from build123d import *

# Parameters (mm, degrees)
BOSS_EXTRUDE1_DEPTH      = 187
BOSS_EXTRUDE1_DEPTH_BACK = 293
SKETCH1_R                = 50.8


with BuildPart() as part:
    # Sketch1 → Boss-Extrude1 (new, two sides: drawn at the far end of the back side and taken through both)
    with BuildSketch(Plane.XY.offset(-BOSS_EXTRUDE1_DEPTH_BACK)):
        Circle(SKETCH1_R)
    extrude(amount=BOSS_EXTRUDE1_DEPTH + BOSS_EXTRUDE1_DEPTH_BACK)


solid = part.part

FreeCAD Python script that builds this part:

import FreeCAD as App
import Part
import Sketcher
from FreeCAD import Vector

doc = App.newDocument("Part")
params = doc.addObject("Spreadsheet::Sheet", "Params")
for row, (alias, value) in enumerate([
    ("sketch1_diameter", "101.6 mm"),
    ("pad1_length", "187 mm"),
    ("pad1_length2", "293 mm"),
], start=1):
    params.set(f"A{row}", alias)
    params.set(f"B{row}", "=" + value)
    params.setAlias(f"B{row}", alias)

body = doc.addObject("PartDesign::Body", "Body")

# Sketch on XY plane
sketch1 = doc.addObject("Sketcher::SketchObject", "Sketch")
body.addObject(sketch1)
sketch1.AttachmentSupport = (doc.XY_Plane, [""])
sketch1.MapMode = "FlatFace"
sketch1.addGeometry(Part.Circle(Vector(0, 0, 0), Vector(0, 0, 1), 51), False)
sketch1.addConstraint([
    Sketcher.Constraint("Coincident", 0, 3, -1, 1),
    Sketcher.Constraint("Diameter", 0, 101.6),
])
sketch1.setExpression("Constraints[1]", "Params.sketch1_diameter")
pad1 = doc.addObject("PartDesign::Pad", "Pad")
body.addObject(pad1)
pad1.Profile = sketch1
pad1.Type = "TwoLengths"
pad1.setExpression("Length", "Params.pad1_length")
pad1.setExpression("Length2", "Params.pad1_length2")

doc.recompute()
